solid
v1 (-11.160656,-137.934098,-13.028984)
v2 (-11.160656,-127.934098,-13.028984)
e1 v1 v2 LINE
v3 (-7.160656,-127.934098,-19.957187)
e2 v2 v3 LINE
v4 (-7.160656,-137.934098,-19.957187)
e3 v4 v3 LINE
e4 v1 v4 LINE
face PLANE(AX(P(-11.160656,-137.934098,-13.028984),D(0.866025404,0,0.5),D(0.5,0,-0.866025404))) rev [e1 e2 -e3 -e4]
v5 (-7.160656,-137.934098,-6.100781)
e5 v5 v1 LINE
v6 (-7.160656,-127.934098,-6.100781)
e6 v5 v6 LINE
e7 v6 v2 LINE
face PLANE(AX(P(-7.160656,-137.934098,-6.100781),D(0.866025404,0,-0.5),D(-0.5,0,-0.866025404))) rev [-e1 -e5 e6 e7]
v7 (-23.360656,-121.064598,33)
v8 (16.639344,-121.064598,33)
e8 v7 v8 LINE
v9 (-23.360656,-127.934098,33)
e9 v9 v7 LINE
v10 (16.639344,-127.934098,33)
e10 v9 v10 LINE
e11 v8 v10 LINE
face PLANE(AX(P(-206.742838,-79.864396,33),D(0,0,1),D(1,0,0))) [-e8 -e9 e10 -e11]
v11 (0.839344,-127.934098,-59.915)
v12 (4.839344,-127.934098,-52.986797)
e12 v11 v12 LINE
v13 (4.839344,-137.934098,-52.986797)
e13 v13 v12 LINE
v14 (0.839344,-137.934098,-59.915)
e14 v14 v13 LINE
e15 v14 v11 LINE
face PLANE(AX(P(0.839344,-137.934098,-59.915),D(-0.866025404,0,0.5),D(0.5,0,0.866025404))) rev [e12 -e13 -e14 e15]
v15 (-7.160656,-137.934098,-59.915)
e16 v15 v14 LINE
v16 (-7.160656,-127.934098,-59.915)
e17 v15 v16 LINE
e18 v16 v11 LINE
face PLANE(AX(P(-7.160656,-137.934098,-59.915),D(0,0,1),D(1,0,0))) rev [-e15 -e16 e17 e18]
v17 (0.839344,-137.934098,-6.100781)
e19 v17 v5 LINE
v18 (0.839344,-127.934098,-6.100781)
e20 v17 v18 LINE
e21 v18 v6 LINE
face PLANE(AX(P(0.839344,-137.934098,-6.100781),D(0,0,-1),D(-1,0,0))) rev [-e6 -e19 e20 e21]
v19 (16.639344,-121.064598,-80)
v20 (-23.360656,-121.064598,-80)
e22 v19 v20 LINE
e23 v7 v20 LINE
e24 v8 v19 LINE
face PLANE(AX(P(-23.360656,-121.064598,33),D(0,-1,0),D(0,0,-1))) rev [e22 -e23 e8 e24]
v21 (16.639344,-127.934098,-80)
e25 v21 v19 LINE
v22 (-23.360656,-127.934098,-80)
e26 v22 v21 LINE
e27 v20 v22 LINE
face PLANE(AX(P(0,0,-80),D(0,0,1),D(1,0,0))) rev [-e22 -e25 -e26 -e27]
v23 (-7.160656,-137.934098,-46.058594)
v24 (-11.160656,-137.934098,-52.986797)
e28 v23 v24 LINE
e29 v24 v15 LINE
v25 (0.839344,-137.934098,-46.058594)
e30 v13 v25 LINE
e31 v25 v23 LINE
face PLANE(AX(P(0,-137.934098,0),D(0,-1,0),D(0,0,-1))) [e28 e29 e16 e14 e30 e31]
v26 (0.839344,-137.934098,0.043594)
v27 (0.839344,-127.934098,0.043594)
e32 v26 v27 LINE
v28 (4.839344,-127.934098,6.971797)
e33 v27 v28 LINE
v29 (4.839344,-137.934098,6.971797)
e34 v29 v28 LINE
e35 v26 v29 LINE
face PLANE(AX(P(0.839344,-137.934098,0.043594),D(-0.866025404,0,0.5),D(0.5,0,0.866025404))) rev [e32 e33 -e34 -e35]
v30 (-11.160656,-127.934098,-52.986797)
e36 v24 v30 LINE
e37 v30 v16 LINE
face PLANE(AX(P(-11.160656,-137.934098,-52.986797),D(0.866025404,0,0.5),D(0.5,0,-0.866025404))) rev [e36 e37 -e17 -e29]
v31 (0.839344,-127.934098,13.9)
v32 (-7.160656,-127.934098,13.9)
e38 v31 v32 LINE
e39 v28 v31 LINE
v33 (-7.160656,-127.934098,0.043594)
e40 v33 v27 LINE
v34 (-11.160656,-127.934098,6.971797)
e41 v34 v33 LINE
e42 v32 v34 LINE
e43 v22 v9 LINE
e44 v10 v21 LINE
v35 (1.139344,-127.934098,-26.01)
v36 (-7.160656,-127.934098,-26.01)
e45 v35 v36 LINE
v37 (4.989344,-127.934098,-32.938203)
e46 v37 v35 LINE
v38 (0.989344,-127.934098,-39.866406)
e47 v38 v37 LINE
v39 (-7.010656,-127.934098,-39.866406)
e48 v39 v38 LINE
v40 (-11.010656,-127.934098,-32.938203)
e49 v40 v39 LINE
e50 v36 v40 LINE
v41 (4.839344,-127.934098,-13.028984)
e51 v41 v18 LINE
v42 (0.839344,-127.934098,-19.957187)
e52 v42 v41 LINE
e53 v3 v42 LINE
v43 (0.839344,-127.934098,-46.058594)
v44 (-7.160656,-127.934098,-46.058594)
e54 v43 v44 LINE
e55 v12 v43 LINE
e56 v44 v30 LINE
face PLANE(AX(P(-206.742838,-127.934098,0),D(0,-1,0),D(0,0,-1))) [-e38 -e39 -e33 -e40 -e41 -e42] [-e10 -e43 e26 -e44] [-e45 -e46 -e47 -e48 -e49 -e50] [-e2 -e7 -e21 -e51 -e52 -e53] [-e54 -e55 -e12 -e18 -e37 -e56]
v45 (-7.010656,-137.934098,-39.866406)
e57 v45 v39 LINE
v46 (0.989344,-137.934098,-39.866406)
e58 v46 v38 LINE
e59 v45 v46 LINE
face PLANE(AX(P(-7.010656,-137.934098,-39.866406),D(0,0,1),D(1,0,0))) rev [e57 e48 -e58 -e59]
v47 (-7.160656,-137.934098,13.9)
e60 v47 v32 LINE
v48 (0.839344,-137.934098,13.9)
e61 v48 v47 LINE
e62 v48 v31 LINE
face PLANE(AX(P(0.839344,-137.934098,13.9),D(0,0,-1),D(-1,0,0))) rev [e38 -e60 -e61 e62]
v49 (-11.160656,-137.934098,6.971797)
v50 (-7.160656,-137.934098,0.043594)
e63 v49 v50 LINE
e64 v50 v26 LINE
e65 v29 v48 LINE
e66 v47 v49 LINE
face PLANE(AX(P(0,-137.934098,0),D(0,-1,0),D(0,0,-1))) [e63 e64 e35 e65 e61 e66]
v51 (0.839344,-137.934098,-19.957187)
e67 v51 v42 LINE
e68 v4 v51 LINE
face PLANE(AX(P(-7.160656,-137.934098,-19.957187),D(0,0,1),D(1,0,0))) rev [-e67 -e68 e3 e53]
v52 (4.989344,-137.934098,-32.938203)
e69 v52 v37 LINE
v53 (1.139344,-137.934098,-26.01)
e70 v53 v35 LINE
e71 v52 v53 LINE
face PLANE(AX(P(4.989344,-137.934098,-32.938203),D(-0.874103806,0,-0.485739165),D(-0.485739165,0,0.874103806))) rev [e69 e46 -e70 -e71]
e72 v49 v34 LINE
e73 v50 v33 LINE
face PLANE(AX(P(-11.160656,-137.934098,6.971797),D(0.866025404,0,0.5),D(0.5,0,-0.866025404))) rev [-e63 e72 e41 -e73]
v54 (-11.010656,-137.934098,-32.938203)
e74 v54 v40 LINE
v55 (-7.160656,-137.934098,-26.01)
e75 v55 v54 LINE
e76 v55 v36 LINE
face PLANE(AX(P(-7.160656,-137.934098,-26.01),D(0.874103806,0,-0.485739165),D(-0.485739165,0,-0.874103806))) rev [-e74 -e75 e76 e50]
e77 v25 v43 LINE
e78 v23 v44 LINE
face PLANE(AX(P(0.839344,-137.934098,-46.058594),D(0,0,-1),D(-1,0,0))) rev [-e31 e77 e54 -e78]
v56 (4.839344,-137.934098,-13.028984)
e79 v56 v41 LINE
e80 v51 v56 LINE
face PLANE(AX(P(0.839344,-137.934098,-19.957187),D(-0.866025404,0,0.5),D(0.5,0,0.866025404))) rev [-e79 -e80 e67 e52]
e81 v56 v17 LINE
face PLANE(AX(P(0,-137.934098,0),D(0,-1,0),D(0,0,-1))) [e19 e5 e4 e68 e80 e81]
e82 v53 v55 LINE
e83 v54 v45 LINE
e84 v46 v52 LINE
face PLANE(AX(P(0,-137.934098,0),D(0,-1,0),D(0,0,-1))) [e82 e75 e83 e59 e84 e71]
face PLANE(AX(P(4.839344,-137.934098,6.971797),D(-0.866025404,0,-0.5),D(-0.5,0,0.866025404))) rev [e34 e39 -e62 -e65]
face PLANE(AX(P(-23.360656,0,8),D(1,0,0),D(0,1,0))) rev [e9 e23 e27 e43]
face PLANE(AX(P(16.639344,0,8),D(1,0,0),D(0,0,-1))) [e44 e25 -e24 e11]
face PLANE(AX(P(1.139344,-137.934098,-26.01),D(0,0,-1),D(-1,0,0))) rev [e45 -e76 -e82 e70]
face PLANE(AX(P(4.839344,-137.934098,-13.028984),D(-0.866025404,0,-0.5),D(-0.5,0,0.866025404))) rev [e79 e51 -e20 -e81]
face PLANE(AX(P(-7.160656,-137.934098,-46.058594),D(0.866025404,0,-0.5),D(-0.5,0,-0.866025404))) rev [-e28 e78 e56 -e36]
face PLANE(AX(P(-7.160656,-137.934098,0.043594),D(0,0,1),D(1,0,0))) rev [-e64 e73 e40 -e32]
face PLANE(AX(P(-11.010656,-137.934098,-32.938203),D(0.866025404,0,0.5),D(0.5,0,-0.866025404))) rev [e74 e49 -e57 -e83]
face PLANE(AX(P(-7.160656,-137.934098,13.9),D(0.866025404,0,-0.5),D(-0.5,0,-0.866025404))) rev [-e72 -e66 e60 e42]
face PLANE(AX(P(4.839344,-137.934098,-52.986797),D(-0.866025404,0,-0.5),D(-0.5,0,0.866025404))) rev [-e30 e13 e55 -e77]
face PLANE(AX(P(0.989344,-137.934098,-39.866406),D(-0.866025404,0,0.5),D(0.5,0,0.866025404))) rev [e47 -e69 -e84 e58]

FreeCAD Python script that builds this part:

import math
import FreeCAD as App
import Part
import Sketcher

V = App.Vector
Q = App.Units.Quantity


def edges_at(feature, points):
    """Names of the edges that pass closest to the given points."""
    edges = feature.Shape.Edges
    near = lambda p: min(range(len(edges)), key=lambda i: edges[i].distToShape(Part.Vertex(*p))[0])
    return sorted({f"Edge{near(p) + 1}" for p in points})

doc = App.newDocument("Part")
params = doc.addObject("Spreadsheet::Sheet", "Params")
for row, (alias, value) in enumerate([
    ("sketch1_diameter", "3.2 mm"),
    ("sketch1_diameter2", "22.5 mm"),
    ("sketch1_width", "40 mm"),
    ("pad1_length", "8 mm"),
    ("chamfer_size", "1 mm"),
    ("chamfer2_size", "1.3 mm"),
    ("sketch2_radius", "11.25 mm"),
    ("sketch2_width", "7.5 mm"),
    ("pad2_length", "5 mm"),
    ("sketch3_radius", "10 mm"),
    ("sketch3_width", "40 mm"),
    ("sketch3_height", "10 mm"),
    ("sketch3_height2", "113 mm"),
    ("sketch3_height3", "13 mm"),
    ("pad3_length", "40 mm"),
    ("sketch4_height", "7 mm"),
    ("sketch5_height", "6 mm"),
    ("pocket2_length", "40 mm"),
    ("sketch6_width", "8 mm"),
    ("sketch6_length", "8 mm"),
    ("sketch6_width2", "8.3 mm"),
    ("pad4_length", "10 mm"),
    ("sketch8_width", "40 mm"),
    ("pad5_length", "113 mm"),
], start=1):
    params.set(f"A{row}", alias)
    params.set(f"B{row}", "=" + value)
    params.setAlias(f"B{row}", alias)

body = doc.addObject("PartDesign::Body", "Body")

# Sketch on XY plane
sketch1 = doc.addObject("Sketcher::SketchObject", "Sketch")
body.addObject(sketch1)
sketch1.AttachmentSupport = (doc.XY_Plane, [""])
sketch1.MapMode = "FlatFace"
sketch1.addGeometry(Part.LineSegment(V(-23.4, 16.5, 0), V(-23.4, -23.5, 0)), False)
sketch1.addGeometry(Part.LineSegment(V(-23.4, -23.5, 0), V(16.6, -23.5, 0)), False)
sketch1.addGeometry(Part.LineSegment(V(16.6, -23.5, 0), V(16.6, 16.5, 0)), False)
sketch1.addGeometry(Part.LineSegment(V(16.6, 16.5, 0), V(-23.4, 16.5, 0)), False)
sketch1.addGeometry(Part.Circle(V(-3.4, -19.8, 0), V(0, 0, 1), 1.6), False)
sketch1.addGeometry(Part.Circle(V(-19.6, -3.5, 0), V(0, 0, 1), 1.6), False)
sketch1.addGeometry(Part.Circle(V(-3.4, -3.5, 0), V(0, 0, 1), 11.2), False)
sketch1.addGeometry(Part.Circle(V(12.9, -3.5, 0), V(0, 0, 1), 1.6), False)
sketch1.addGeometry(Part.Circle(V(-3.4, 12.7, 0), V(0, 0, 1), 1.6), False)
sketch1.addConstraint(Sketcher.Constraint("Coincident", 0, 2, 1, 1))
sketch1.addConstraint(Sketcher.Constraint("Coincident", 1, 2, 2, 1))
sketch1.addConstraint(Sketcher.Constraint("Coincident", 2, 2, 3, 1))
sketch1.addConstraint(Sketcher.Constraint("Coincident", 3, 2, 0, 1))
sketch1.addConstraint(Sketcher.Constraint("Vertical", 0))
sketch1.addConstraint(Sketcher.Constraint("Horizontal", 1))
sketch1.addConstraint(Sketcher.Constraint("Vertical", 2))
sketch1.addConstraint(Sketcher.Constraint("Horizontal", 3))
sketch1.addConstraint(Sketcher.Constraint("Equal", 4, 5))
sketch1.addConstraint(Sketcher.Constraint("Equal", 5, 7))
sketch1.addConstraint(Sketcher.Constraint("Equal", 7, 8))
sketch1.addConstraint(Sketcher.Constraint("Horizontal", 5, 3, 6, 3))
sketch1.addConstraint(Sketcher.Constraint("Horizontal", 6, 3, 7, 3))
sketch1.addConstraint(Sketcher.Constraint("Vertical", 4, 3, 6, 3))
sketch1.addConstraint(Sketcher.Constraint("Vertical", 6, 3, 8, 3))
sketch1.addConstraint(Sketcher.Constraint("Equal", 3, 0))
sketch1.addConstraint(Sketcher.Constraint("Diameter", 4, 3.2))
sketch1.addConstraint(Sketcher.Constraint("Diameter", 6, 22.5))
sketch1.addConstraint(Sketcher.Constraint("DistanceX", 1, 1, 1, 2, 40.0))
sketch1.addConstraint(Sketcher.Constraint("DistanceX", 0, 2, 4, 3, 20.0))
sketch1.addConstraint(Sketcher.Constraint("DistanceY", 0, 2, 5, 3, 20.0))
sketch1.addConstraint(Sketcher.Constraint("DistanceX", 5, 3, 7, 3, 32.5))
sketch1.addConstraint(Sketcher.Constraint("DistanceY", 4, 3, 8, 3, 32.5))
sketch1.addConstraint(Sketcher.Constraint("DistanceX", 5, 3, 4, 3, 16.25))
sketch1.addConstraint(Sketcher.Constraint("DistanceY", 4, 3, 5, 3, 16.25))
sketch1.addConstraint(Sketcher.Constraint("DistanceY", 4, 3, -1, 1, 19.754098))
sketch1.addConstraint(Sketcher.Constraint("DistanceX", 4, 3, -1, 1, 3.360656))
sketch1.setExpression("Constraints[16]", "Params.sketch1_diameter")
sketch1.setExpression("Constraints[17]", "Params.sketch1_diameter2")
sketch1.setExpression("Constraints[18]", "Params.sketch1_width")
pad1 = doc.addObject("PartDesign::Pad", "Pad")
body.addObject(pad1)
pad1.Profile = sketch1
pad1.setExpression("Length", "Params.pad1_length")
doc.recompute()

chamfer = doc.addObject("PartDesign::Chamfer", "Chamfer")
body.addObject(chamfer)
chamfer.Base = (pad1, edges_at(pad1, [
    (-4.961, 12.746, 0),
    (11.289, -3.504, 0),
    (-4.961, -19.754, 0),
    (-21.211, -3.504, 0),
]))
chamfer.setExpression("Size", "Params.chamfer_size")
doc.recompute()

chamfer2 = doc.addObject("PartDesign::Chamfer", "Chamfer001")
body.addObject(chamfer2)
chamfer2.Base = (chamfer, edges_at(chamfer, [(-14.611, -3.504, 0)]))
chamfer2.setExpression("Size", "Params.chamfer2_size")

# Sketch on XY plane
sketch2 = doc.addObject("Sketcher::SketchObject", "Sketch001")
body.addObject(sketch2)
sketch2.AttachmentSupport = (doc.XY_Plane, [""])
sketch2.MapMode = "FlatFace"
sketch2.AttachmentOffset = App.Placement(V(0, 0, 8), App.Rotation())
sketch2.addGeometry(Part.LineSegment(V(-23.4, -8.1, 0), V(-23.4, -23.5, 0)), False)
sketch2.addGeometry(Part.LineSegment(V(-23.4, -23.5, 0), V(-8, -23.5, 0)), False)
sketch2.addGeometry(Part.LineSegment(V(-8, -23.5, 0), V(-8, -13.8, 0)), False)
sketch2.addGeometry(Part.ArcOfCircle(Part.Circle(V(-3.4, -3.5, 0), V(0, 0, 1), 11.2), math.radians(-156), math.radians(-114)), False)
sketch2.addGeometry(Part.LineSegment(V(-13.6, -8.1, 0), V(-23.4, -8.1, 0)), False)
sketch2.addGeometry(Part.LineSegment(V(-8, 9, 0), V(-8, 16.5, 0)), False)
sketch2.addGeometry(Part.LineSegment(V(-8, 16.5, 0), V(-23.4, 16.5, 0)), False)
sketch2.addGeometry(Part.LineSegment(V(-23.4, 16.5, 0), V(-23.4, 1.1, 0)), False)
sketch2.addGeometry(Part.LineSegment(V(-23.4, 1.1, 0), V(-15.9, 1.1, 0)), False)
sketch2.addGeometry(Part.LineSegment(V(-15.9, 1.1, 0), V(-13.6, 1.1, 0)), False)
sketch2.addGeometry(Part.ArcOfCircle(Part.Circle(V(-3.4, -3.5, 0), V(0, 0, 1), 11.2), math.radians(114), math.radians(156)), False)
sketch2.addGeometry(Part.LineSegment(V(-8, 6.8, 0), V(-8, 9, 0)), False)
sketch2.addGeometry(Part.LineSegment(V(16.6, 16.5, 0), V(1.2, 16.5, 0)), False)
sketch2.addGeometry(Part.LineSegment(V(1.2, 16.5, 0), V(1.2, 9, 0)), False)
sketch2.addGeometry(Part.LineSegment(V(1.2, 9, 0), V(1.2, 6.8, 0)), False)
sketch2.addGeometry(Part.ArcOfCircle(Part.Circle(V(-3.4, -3.5, 0), V(0, 0, 1), 11.2), math.radians(24), math.radians(66)), False)
sketch2.addGeometry(Part.LineSegment(V(6.9, 1.1, 0), V(9.1, 1.1, 0)), False)
sketch2.addGeometry(Part.LineSegment(V(9.1, 1.1, 0), V(16.6, 1.1, 0)), False)
sketch2.addGeometry(Part.LineSegment(V(16.6, 1.1, 0), V(16.6, 16.5, 0)), False)
sketch2.addGeometry(Part.LineSegment(V(16.6, -23.5, 0), V(16.6, -8.1, 0)), False)
sketch2.addGeometry(Part.LineSegment(V(16.6, -8.1, 0), V(9.1, -8.1, 0)), False)
sketch2.addGeometry(Part.LineSegment(V(9.1, -8.1, 0), V(6.9, -8.1, 0)), False)
sketch2.addGeometry(Part.ArcOfCircle(Part.Circle(V(-3.4, -3.5, 0), V(0, 0, 1), 11.2), math.radians(-66), math.radians(-24)), False)
sketch2.addGeometry(Part.LineSegment(V(1.2, -13.8, 0), V(1.2, -16, 0)), False)
sketch2.addGeometry(Part.LineSegment(V(1.2, -16, 0), V(1.2, -23.5, 0)), False)
sketch2.addGeometry(Part.LineSegment(V(1.2, -23.5, 0), V(16.6, -23.5, 0)), False)
sketch2.addConstraint(Sketcher.Constraint("Coincident", 0, 2, 1, 1))
sketch2.addConstraint(Sketcher.Constraint("Coincident", 1, 2, 2, 1))
sketch2.addConstraint(Sketcher.Constraint("Coincident", 2, 2, 3, 2))
sketch2.addConstraint(Sketcher.Constraint("Coincident", 3, 1, 4, 1))
sketch2.addConstraint(Sketcher.Constraint("Coincident", 4, 2, 0, 1))
sketch2.addConstraint(Sketcher.Constraint("Coincident", 5, 2, 6, 1))
sketch2.addConstraint(Sketcher.Constraint("Coincident", 6, 2, 7, 1))
sketch2.addConstraint(Sketcher.Constraint("Coincident", 7, 2, 8, 1))
sketch2.addConstraint(Sketcher.Constraint("Coincident", 8, 2, 9, 1))
sketch2.addConstraint(Sketcher.Constraint("Coincident", 9, 2, 10, 2))
sketch2.addConstraint(Sketcher.Constraint("Coincident", 10, 1, 11, 1))
sketch2.addConstraint(Sketcher.Constraint("Coincident", 11, 2, 5, 1))
sketch2.addConstraint(Sketcher.Constraint("Coincident", 12, 2, 13, 1))
sketch2.addConstraint(Sketcher.Constraint("Coincident", 13, 2, 14, 1))
sketch2.addConstraint(Sketcher.Constraint("Coincident", 14, 2, 15, 2))
sketch2.addConstraint(Sketcher.Constraint("Coincident", 15, 1, 16, 1))
sketch2.addConstraint(Sketcher.Constraint("Coincident", 16, 2, 17, 1))
sketch2.addConstraint(Sketcher.Constraint("Coincident", 17, 2, 18, 1))
sketch2.addConstraint(Sketcher.Constraint("Coincident", 18, 2, 12, 1))
sketch2.addConstraint(Sketcher.Constraint("Coincident", 19, 2, 20, 1))
sketch2.addConstraint(Sketcher.Constraint("Coincident", 20, 2, 21, 1))
sketch2.addConstraint(Sketcher.Constraint("Coincident", 21, 2, 22, 2))
sketch2.addConstraint(Sketcher.Constraint("Coincident", 22, 1, 23, 1))
sketch2.addConstraint(Sketcher.Constraint("Coincident", 23, 2, 24, 1))
sketch2.addConstraint(Sketcher.Constraint("Coincident", 24, 2, 25, 1))
sketch2.addConstraint(Sketcher.Constraint("Coincident", 25, 2, 19, 1))
sketch2.addConstraint(Sketcher.Constraint("Vertical", 0))
sketch2.addConstraint(Sketcher.Constraint("Horizontal", 1))
sketch2.addConstraint(Sketcher.Constraint("Vertical", 2))
sketch2.addConstraint(Sketcher.Constraint("Horizontal", 4))
sketch2.addConstraint(Sketcher.Constraint("Vertical", 5))
sketch2.addConstraint(Sketcher.Constraint("Horizontal", 6))
sketch2.addConstraint(Sketcher.Constraint("Vertical", 7))
sketch2.addConstraint(Sketcher.Constraint("Horizontal", 8))
sketch2.addConstraint(Sketcher.Constraint("Horizontal", 9))
sketch2.addConstraint(Sketcher.Constraint("Vertical", 11))
sketch2.addConstraint(Sketcher.Constraint("Horizontal", 12))
sketch2.addConstraint(Sketcher.Constraint("Vertical", 13))
sketch2.addConstraint(Sketcher.Constraint("Vertical", 14))
sketch2.addConstraint(Sketcher.Constraint("Horizontal", 16))
sketch2.addConstraint(Sketcher.Constraint("Horizontal", 17))
sketch2.addConstraint(Sketcher.Constraint("Vertical", 18))
sketch2.addConstraint(Sketcher.Constraint("Vertical", 19))
sketch2.addConstraint(Sketcher.Constraint("Horizontal", 20))
sketch2.addConstraint(Sketcher.Constraint("Horizontal", 21))
sketch2.addConstraint(Sketcher.Constraint("Vertical", 23))
sketch2.addConstraint(Sketcher.Constraint("Vertical", 24))
sketch2.addConstraint(Sketcher.Constraint("Horizontal", 25))
sketch2.addConstraint(Sketcher.Constraint("Coincident", 10, 3, 3, 3))
sketch2.addConstraint(Sketcher.Constraint("Coincident", 15, 3, 3, 3))
sketch2.addConstraint(Sketcher.Constraint("Coincident", 22, 3, 3, 3))
sketch2.addConstraint(Sketcher.Constraint("Equal", 3, 10))
sketch2.addConstraint(Sketcher.Constraint("Equal", 10, 15))
sketch2.addConstraint(Sketcher.Constraint("Equal", 15, 22))
sketch2.addConstraint(Sketcher.Constraint("Horizontal", 6, 2, 12, 2))
sketch2.addConstraint(Sketcher.Constraint("Horizontal", 11, 2, 13, 2))
sketch2.addConstraint(Sketcher.Constraint("Horizontal", 10, 1, 14, 2))
sketch2.addConstraint(Sketcher.Constraint("Horizontal", 9, 2, 15, 1))
sketch2.addConstraint(Sketcher.Constraint("Horizontal", 4, 2, 19, 2))
sketch2.addConstraint(Sketcher.Constraint("Horizontal", 2, 2, 22, 1))
sketch2.addConstraint(Sketcher.Constraint("Horizontal", 1, 2, 24, 2))
sketch2.addConstraint(Sketcher.Constraint("Vertical", 2, 2, 5, 2))
sketch2.addConstraint(Sketcher.Constraint("Vertical", 4, 2, 6, 2))
sketch2.addConstraint(Sketcher.Constraint("Vertical", 3, 1, 9, 2))
sketch2.addConstraint(Sketcher.Constraint("Vertical", 18, 2, 19, 2))
sketch2.addConstraint(Sketcher.Constraint("Vertical", 16, 2, 20, 2))
sketch2.addConstraint(Sketcher.Constraint("Equal", 6, 12))
sketch2.addConstraint(Sketcher.Constraint("Equal", 9, 16))
sketch2.addConstraint(Sketcher.Constraint("Equal", 25, 0))
sketch2.addConstraint(Sketcher.Constraint("Equal", 4, 2))
sketch2.addConstraint(Sketcher.Constraint("Equal", 20, 5))
sketch2.addConstraint(Sketcher.Constraint("Equal", 0, 7))
sketch2.addConstraint(Sketcher.Constraint("Equal", 14, 23))
sketch2.addConstraint(Sketcher.Constraint("Radius", 3, 11.25))
sketch2.addConstraint(Sketcher.Constraint("DistanceX", 8, 1, 8, 2, 7.5))
sketch2.addConstraint(Sketcher.Constraint("DistanceX", 0, 2, 3, 3, 20.0))
sketch2.addConstraint(Sketcher.Constraint("DistanceX", 4, 2, 4, 1, 9.728821))
sketch2.addConstraint(Sketcher.Constraint("DistanceY", 3, 3, -1, 1, 3.504098))
sketch2.addConstraint(Sketcher.Constraint("DistanceX", 1, 2, -1, 1, 7.950359))
sketch2.setExpression("Constraints[73]", "Params.sketch2_radius")
sketch2.setExpression("Constraints[74]", "Params.sketch2_width")
pad2 = doc.addObject("PartDesign::Pad", "Pad001")
body.addObject(pad2)
pad2.Profile = sketch2
pad2.setExpression("Length", "Params.pad2_length")

# Sketch on YZ plane
sketch3 = doc.addObject("Sketcher::SketchObject", "Sketch002")
body.addObject(sketch3)
sketch3.AttachmentSupport = (doc.YZ_Plane, [""])
sketch3.MapMode = "FlatFace"
sketch3.AttachmentOffset = App.Placement(V(0, 0, 16.639344), App.Rotation())
sketch3.addGeometry(Part.LineSegment(V(16, 13, 0), V(16, 23, 0)), False)
sketch3.addGeometry(Part.ArcOfCircle(Part.Circle(V(6, 23, 0), V(0, 0, 1), 10), math.radians(0), math.radians(90)), False)
sketch3.addGeometry(Part.LineSegment(V(6, 33, 0), V(-128, 33, 0)), False)
sketch3.addGeometry(Part.LineSegment(V(-128, 33, 0), V(-128, -80, 0)), False)
sketch3.addGeometry(Part.ArcOfCircle(Part.Circle(V(-24, -108, 0), V(0, 0, 1), 108), math.radians(90), math.radians(165)), False)
sketch3.addGeometry(Part.LineSegment(V(-24, 0, 0), V(-24, 13, 0)), False)
sketch3.addGeometry(Part.LineSegment(V(-24, 13, 0), V(16, 13, 0)), False)
sketch3.addConstraint(Sketcher.Constraint("Tangent", 0, 2, 1, 1))
sketch3.addConstraint(Sketcher.Constraint("Tangent", 1, 2, 2, 1))
sketch3.addConstraint(Sketcher.Constraint("Coincident", 2, 2, 3, 1))
sketch3.addConstraint(Sketcher.Constraint("Coincident", 3, 2, 4, 2))
sketch3.addConstraint(Sketcher.Constraint("Coincident", 4, 1, 5, 1))
sketch3.addConstraint(Sketcher.Constraint("Coincident", 5, 2, 6, 1))
sketch3.addConstraint(Sketcher.Constraint("Coincident", 6, 2, 0, 1))
sketch3.addConstraint(Sketcher.Constraint("Vertical", 0))
sketch3.addConstraint(Sketcher.Constraint("Horizontal", 2))
sketch3.addConstraint(Sketcher.Constraint("Vertical", 3))
sketch3.addConstraint(Sketcher.Constraint("Vertical", 5))
sketch3.addConstraint(Sketcher.Constraint("Horizontal", 6))
sketch3.addConstraint(Sketcher.Constraint("PointOnObject", 4, 1, -1))
sketch3.addConstraint(Sketcher.Constraint("Radius", 1, 10.0))
sketch3.addConstraint(Sketcher.Constraint("DistanceX", 6, 1, 6, 2, 40.0))
sketch3.addConstraint(Sketcher.Constraint("DistanceY", 0, 1, 0, 2, 10.0))
sketch3.addConstraint(Sketcher.Constraint("DistanceY", 3, 2, 3, 1, 113.0))
sketch3.addConstraint(Sketcher.Constraint("DistanceY", 5, 1, 5, 2, 13.0))
sketch3.addConstraint(Sketcher.Constraint("DistanceX", 4, 3, 1, 3, 30.0))
sketch3.addConstraint(Sketcher.Constraint("DistanceX", 2, 2, 2, 1, 134.43))
sketch3.addConstraint(Sketcher.Constraint("DistanceX", -1, 1, 1, 3, 6.495902))
sketch3.setExpression("Constraints[13]", "Params.sketch3_radius")
sketch3.setExpression("Constraints[14]", "Params.sketch3_width")
sketch3.setExpression("Constraints[15]", "Params.sketch3_height")
sketch3.setExpression("Constraints[16]", "Params.sketch3_height2")
sketch3.setExpression("Constraints[17]", "Params.sketch3_height3")
pad3 = doc.addObject("PartDesign::Pad", "Pad002")
body.addObject(pad3)
pad3.Profile = sketch3
pad3.setExpression("Length", "Params.pad3_length")
pad3.Reversed = True

# Sketch on YZ plane
sketch4 = doc.addObject("Sketcher::SketchObject", "Sketch003")
body.addObject(sketch4)
sketch4.AttachmentSupport = (doc.YZ_Plane, [""])
sketch4.MapMode = "FlatFace"
sketch4.AttachmentOffset = App.Placement(V(0, 0, 16.639344), App.Rotation())
sketch4.addGeometry(Part.LineSegment(V(1, 20, 0), V(-8, 20, 0)), False)
sketch4.addGeometry(Part.LineSegment(V(-8, 20, 0), V(-8, 13, 0)), False)
sketch4.addGeometry(Part.LineSegment(V(-8, 13, 0), V(1, 13, 0)), False)
sketch4.addGeometry(Part.LineSegment(V(1, 13, 0), V(1, 20, 0)), False)
sketch4.addConstraint(Sketcher.Constraint("Coincident", 0, 2, 1, 1))
sketch4.addConstraint(Sketcher.Constraint("Coincident", 1, 2, 2, 1))
sketch4.addConstraint(Sketcher.Constraint("Coincident", 2, 2, 3, 1))
sketch4.addConstraint(Sketcher.Constraint("Coincident", 3, 2, 0, 1))
sketch4.addConstraint(Sketcher.Constraint("Horizontal", 0))
sketch4.addConstraint(Sketcher.Constraint("Vertical", 1))
sketch4.addConstraint(Sketcher.Constraint("Horizontal", 2))
sketch4.addConstraint(Sketcher.Constraint("Vertical", 3))
sketch4.addConstraint(Sketcher.Constraint("DistanceY", 1, 2, 1, 1, 7.0))
sketch4.addConstraint(Sketcher.Constraint("DistanceY", -1, 1, 0, 2, 20.0))
sketch4.addConstraint(Sketcher.Constraint("DistanceX", 0, 2, -1, 1, 8.093802))
sketch4.addConstraint(Sketcher.Constraint("DistanceX", 0, 2, 0, 1, 9.179407))
sketch4.setExpression("Constraints[8]", "Params.sketch4_height")
pocket1 = doc.addObject("PartDesign::Pocket", "Pocket")
body.addObject(pocket1)
pocket1.Profile = sketch4
pocket1.Type = "ThroughAll"
pocket1.Midplane = True

# Sketch on XZ plane
sketch5 = doc.addObject("Sketcher::SketchObject", "Sketch004")
body.addObject(sketch5)
sketch5.AttachmentSupport = (doc.XZ_Plane, [""])
sketch5.MapMode = "FlatFace"
sketch5.AttachmentOffset = App.Placement(V(0, 0, 23.504098), App.Rotation())
sketch5.addGeometry(Part.LineSegment(V(-8, 13, 0), V(-8, 19, 0)), False)
sketch5.addGeometry(Part.LineSegment(V(-8, 19, 0), V(1, 19, 0)), False)
sketch5.addGeometry(Part.LineSegment(V(1, 19, 0), V(1, 13, 0)), False)
sketch5.addGeometry(Part.LineSegment(V(1, 13, 0), V(-8, 13, 0)), False)
sketch5.addConstraint(Sketcher.Constraint("Coincident", 0, 2, 1, 1))
sketch5.addConstraint(Sketcher.Constraint("Coincident", 1, 2, 2, 1))
sketch5.addConstraint(Sketcher.Constraint("Coincident", 2, 2, 3, 1))
sketch5.addConstraint(Sketcher.Constraint("Coincident", 3, 2, 0, 1))
sketch5.addConstraint(Sketcher.Constraint("Vertical", 0))
sketch5.addConstraint(Sketcher.Constraint("Horizontal", 1))
sketch5.addConstraint(Sketcher.Constraint("Vertical", 2))
sketch5.addConstraint(Sketcher.Constraint("Horizontal", 3))
sketch5.addConstraint(Sketcher.Constraint("DistanceY", 0, 1, 0, 2, 6.0))
sketch5.addConstraint(Sketcher.Constraint("DistanceY", -1, 1, 0, 2, 19.0))
sketch5.addConstraint(Sketcher.Constraint("DistanceX", 1, 1, 1, 2, 9.179407))
sketch5.addConstraint(Sketcher.Constraint("DistanceX", 0, 2, -1, 1, 7.950359))
sketch5.setExpression("Constraints[8]", "Params.sketch5_height")
pocket2 = doc.addObject("PartDesign::Pocket", "Pocket001")
body.addObject(pocket2)
pocket2.Profile = sketch5
pocket2.setExpression("Length", "Params.pocket2_length")

# Sketch on XZ plane
sketch6 = doc.addObject("Sketcher::SketchObject", "Sketch005")
body.addObject(sketch6)
sketch6.AttachmentSupport = (doc.XZ_Plane, [""])
sketch6.MapMode = "FlatFace"
sketch6.AttachmentOffset = App.Placement(V(0, 0, 127.934098), App.Rotation())
sketch6.addGeometry(Part.LineSegment(V(5, -33, 0), V(1, -26, 0)), False)
sketch6.addGeometry(Part.LineSegment(V(1, -26, 0), V(-7, -26, 0)), False)
sketch6.addGeometry(Part.LineSegment(V(-7, -26, 0), V(-11, -33, 0)), False)
sketch6.addGeometry(Part.LineSegment(V(-11, -33, 0), V(-7, -40, 0)), False)
sketch6.addGeometry(Part.LineSegment(V(-7, -40, 0), V(1, -40, 0)), False)
sketch6.addGeometry(Part.LineSegment(V(1, -40, 0), V(5, -33, 0)), False)
sketch6.addGeometry(Part.LineSegment(V(5, -53, 0), V(1, -46, 0)), False)
sketch6.addGeometry(Part.LineSegment(V(1, -46, 0), V(-7, -46, 0)), False)
sketch6.addGeometry(Part.LineSegment(V(-7, -46, 0), V(-11, -53, 0)), False)
sketch6.addGeometry(Part.LineSegment(V(-11, -53, 0), V(-7, -60, 0)), False)
sketch6.addGeometry(Part.LineSegment(V(-7, -60, 0), V(1, -60, 0)), False)
sketch6.addGeometry(Part.LineSegment(V(1, -60, 0), V(5, -53, 0)), False)
sketch6.addGeometry(Part.LineSegment(V(5, -13, 0), V(1, -6, 0)), False)
sketch6.addGeometry(Part.LineSegment(V(1, -6, 0), V(-7, -6, 0)), False)
sketch6.addGeometry(Part.LineSegment(V(-7, -6, 0), V(-11, -13, 0)), False)
sketch6.addGeometry(Part.LineSegment(V(-11, -13, 0), V(-7, -20, 0)), False)
sketch6.addGeometry(Part.LineSegment(V(-7, -20, 0), V(1, -20, 0)), False)
sketch6.addGeometry(Part.LineSegment(V(1, -20, 0), V(5, -13, 0)), False)
sketch6.addGeometry(Part.LineSegment(V(5, 7, 0), V(1, 14, 0)), False)
sketch6.addGeometry(Part.LineSegment(V(1, 14, 0), V(-7, 14, 0)), False)
sketch6.addGeometry(Part.LineSegment(V(-7, 14, 0), V(-11, 7, 0)), False)
sketch6.addGeometry(Part.LineSegment(V(-11, 7, 0), V(-7, 0, 0)), False)
sketch6.addGeometry(Part.LineSegment(V(-7, 0, 0), V(1, 0, 0)), False)
sketch6.addGeometry(Part.LineSegment(V(1, 0, 0), V(5, 7, 0)), False)
sketch6.addConstraint(Sketcher.Constraint("Coincident", 0, 2, 1, 1))
sketch6.addConstraint(Sketcher.Constraint("Coincident", 1, 2, 2, 1))
sketch6.addConstraint(Sketcher.Constraint("Coincident", 2, 2, 3, 1))
sketch6.addConstraint(Sketcher.Constraint("Coincident", 3, 2, 4, 1))
sketch6.addConstraint(Sketcher.Constraint("Coincident", 4, 2, 5, 1))
sketch6.addConstraint(Sketcher.Constraint("Coincident", 5, 2, 0, 1))
sketch6.addConstraint(Sketcher.Constraint("Coincident", 6, 2, 7, 1))
sketch6.addConstraint(Sketcher.Constraint("Coincident", 7, 2, 8, 1))
sketch6.addConstraint(Sketcher.Constraint("Coincident", 8, 2, 9, 1))
sketch6.addConstraint(Sketcher.Constraint("Coincident", 9, 2, 10, 1))
sketch6.addConstraint(Sketcher.Constraint("Coincident", 10, 2, 11, 1))
sketch6.addConstraint(Sketcher.Constraint("Coincident", 11, 2, 6, 1))
sketch6.addConstraint(Sketcher.Constraint("Coincident", 12, 2, 13, 1))
sketch6.addConstraint(Sketcher.Constraint("Coincident", 13, 2, 14, 1))
sketch6.addConstraint(Sketcher.Constraint("Coincident", 14, 2, 15, 1))
sketch6.addConstraint(Sketcher.Constraint("Coincident", 15, 2, 16, 1))
sketch6.addConstraint(Sketcher.Constraint("Coincident", 16, 2, 17, 1))
sketch6.addConstraint(Sketcher.Constraint("Coincident", 17, 2, 12, 1))
sketch6.addConstraint(Sketcher.Constraint("Coincident", 18, 2, 19, 1))
sketch6.addConstraint(Sketcher.Constraint("Coincident", 19, 2, 20, 1))
sketch6.addConstraint(Sketcher.Constraint("Coincident", 20, 2, 21, 1))
sketch6.addConstraint(Sketcher.Constraint("Coincident", 21, 2, 22, 1))
sketch6.addConstraint(Sketcher.Constraint("Coincident", 22, 2, 23, 1))
sketch6.addConstraint(Sketcher.Constraint("Coincident", 23, 2, 18, 1))
sketch6.addConstraint(Sketcher.Constraint("Horizontal", 1))
sketch6.addConstraint(Sketcher.Constraint("Horizontal", 4))
sketch6.addConstraint(Sketcher.Constraint("Horizontal", 7))
sketch6.addConstraint(Sketcher.Constraint("Horizontal", 10))
sketch6.addConstraint(Sketcher.Constraint("Horizontal", 13))
sketch6.addConstraint(Sketcher.Constraint("Horizontal", 16))
sketch6.addConstraint(Sketcher.Constraint("Horizontal", 19))
sketch6.addConstraint(Sketcher.Constraint("Horizontal", 22))
sketch6.addConstraint(Sketcher.Constraint("Parallel", 3, 6))
sketch6.addConstraint(Sketcher.Constraint("Parallel", 5, 8))
sketch6.addConstraint(Sketcher.Constraint("Parallel", 6, 9))
sketch6.addConstraint(Sketcher.Constraint("Parallel", 8, 11))
sketch6.addConstraint(Sketcher.Constraint("Parallel", 9, 12))
sketch6.addConstraint(Sketcher.Constraint("Parallel", 11, 14))
sketch6.addConstraint(Sketcher.Constraint("Parallel", 12, 15))
sketch6.addConstraint(Sketcher.Constraint("Parallel", 14, 17))
sketch6.addConstraint(Sketcher.Constraint("Parallel", 15, 18))
sketch6.addConstraint(Sketcher.Constraint("Parallel", 17, 20))
sketch6.addConstraint(Sketcher.Constraint("Parallel", 18, 21))
sketch6.addConstraint(Sketcher.Constraint("Parallel", 20, 23))
sketch6.addConstraint(Sketcher.Constraint("Horizontal", 2, 2, 5, 2))
sketch6.addConstraint(Sketcher.Constraint("Horizontal", 8, 2, 11, 2))
sketch6.addConstraint(Sketcher.Constraint("Horizontal", 14, 2, 17, 2))
sketch6.addConstraint(Sketcher.Constraint("Horizontal", 20, 2, 23, 2))
sketch6.addConstraint(Sketcher.Constraint("Vertical", 1, 2, 7, 2))
sketch6.addConstraint(Sketcher.Constraint("Vertical", 7, 2, 9, 2))
sketch6.addConstraint(Sketcher.Constraint("Vertical", 6, 2, 10, 2))
sketch6.addConstraint(Sketcher.Constraint("Vertical", 10, 2, 12, 2))
sketch6.addConstraint(Sketcher.Constraint("Vertical", 9, 2, 13, 2))
sketch6.addConstraint(Sketcher.Constraint("Vertical", 8, 2, 14, 2))
sketch6.addConstraint(Sketcher.Constraint("Vertical", 13, 2, 15, 2))
sketch6.addConstraint(Sketcher.Constraint("Vertical", 16, 2, 18, 2))
sketch6.addConstraint(Sketcher.Constraint("Vertical", 15, 2, 19, 2))
sketch6.addConstraint(Sketcher.Constraint("Vertical", 14, 2, 20, 2))
sketch6.addConstraint(Sketcher.Constraint("Vertical", 19, 2, 21, 2))
sketch6.addConstraint(Sketcher.Constraint("Equal", 4, 7))
sketch6.addConstraint(Sketcher.Constraint("Equal", 0, 2))
sketch6.addConstraint(Sketcher.Constraint("Equal", 5, 6))
sketch6.addConstraint(Sketcher.Constraint("DistanceX", 4, 1, 4, 2, 8.0))
sketch6.addConstraint(Sketcher.Constraint("Angle", 3, Q("-60 deg")))
sketch6.addConstraint(Sketcher.Constraint("Distance", 3, 8.0))
sketch6.addConstraint(Sketcher.Constraint("DistanceX", 1, 2, 1, 1, 8.3))
sketch6.addConstraint(Sketcher.Constraint("DistanceY", -1, 1, 18, 2, 13.9))
sketch6.addConstraint(Sketcher.Constraint("DistanceY", 0, 2, -1, 1, 26.01))
sketch6.addConstraint(Sketcher.Constraint("DistanceY", 9, 2, -1, 1, 59.915))
sketch6.addConstraint(Sketcher.Constraint("DistanceY", 12, 2, -1, 1, 6.100781))
sketch6.addConstraint(Sketcher.Constraint("DistanceY", 6, 2, 5, 2, 13.12039))
sketch6.addConstraint(Sketcher.Constraint("DistanceX", -1, 1, 0, 2, 1.139344))
sketch6.setExpression("Constraints[62]", "Params.sketch6_width")
sketch6.setExpression("Constraints[64]", "Params.sketch6_length")
sketch6.setExpression("Constraints[65]", "Params.sketch6_width2")
pad4 = doc.addObject("PartDesign::Pad", "Pad003")
body.addObject(pad4)
pad4.Profile = sketch6
pad4.setExpression("Length", "Params.pad4_length")

# Sketch on YZ plane
sketch7 = doc.addObject("Sketcher::SketchObject", "Sketch006")
body.addObject(sketch7)
sketch7.AttachmentSupport = (doc.YZ_Plane, [""])
sketch7.MapMode = "FlatFace"
sketch7.AttachmentOffset = App.Placement(V(0, 0, 16.639344), App.Rotation())
sketch7.addGeometry(Part.LineSegment(V(16, 33, 0), V(-121, 33, 0)), False)
sketch7.addGeometry(Part.LineSegment(V(-121, 33, 0), V(-121, -75, 0)), False)
sketch7.addGeometry(Part.LineSegment(V(-121, -75, 0), V(16, -75, 0)), False)
sketch7.addGeometry(Part.LineSegment(V(16, -75, 0), V(16, 33, 0)), False)
sketch7.addConstraint(Sketcher.Constraint("Coincident", 0, 2, 1, 1))
sketch7.addConstraint(Sketcher.Constraint("Coincident", 1, 2, 2, 1))
sketch7.addConstraint(Sketcher.Constraint("Coincident", 2, 2, 3, 1))
sketch7.addConstraint(Sketcher.Constraint("Coincident", 3, 2, 0, 1))
sketch7.addConstraint(Sketcher.Constraint("Horizontal", 0))
sketch7.addConstraint(Sketcher.Constraint("Vertical", 1))
sketch7.addConstraint(Sketcher.Constraint("Horizontal", 2))
sketch7.addConstraint(Sketcher.Constraint("Vertical", 3))
sketch7.addConstraint(Sketcher.Constraint("DistanceY", -1, 1, 0, 2, 33.0))
sketch7.addConstraint(Sketcher.Constraint("DistanceX", 0, 2, 0, 1, 137.560499))
sketch7.addConstraint(Sketcher.Constraint("DistanceX", -1, 1, 2, 2, 16.495902))
sketch7.addConstraint(Sketcher.Constraint("DistanceY", 1, 2, 1, 1, 108.011855))
pocket3 = doc.addObject("PartDesign::Pocket", "Pocket002")
body.addObject(pocket3)
pocket3.Profile = sketch7
pocket3.Type = "ThroughAll"

# Sketch on XY plane
sketch8 = doc.addObject("Sketcher::SketchObject", "Sketch007")
body.addObject(sketch8)
sketch8.AttachmentSupport = (doc.XY_Plane, [""])
sketch8.MapMode = "FlatFace"
sketch8.AttachmentOffset = App.Placement(V(0, 0, 33), App.Rotation())
sketch8.addGeometry(Part.LineSegment(V(-23, -121, 0), V(-23, -128, 0)), False)
sketch8.addGeometry(Part.LineSegment(V(-23, -128, 0), V(17, -128, 0)), False)
sketch8.addGeometry(Part.LineSegment(V(17, -128, 0), V(17, -121, 0)), False)
sketch8.addGeometry(Part.LineSegment(V(17, -121, 0), V(-23, -121, 0)), False)
sketch8.addConstraint(Sketcher.Constraint("Coincident", 0, 2, 1, 1))
sketch8.addConstraint(Sketcher.Constraint("Coincident", 1, 2, 2, 1))
sketch8.addConstraint(Sketcher.Constraint("Coincident", 2, 2, 3, 1))
sketch8.addConstraint(Sketcher.Constraint("Coincident", 3, 2, 0, 1))
sketch8.addConstraint(Sketcher.Constraint("Vertical", 0))
sketch8.addConstraint(Sketcher.Constraint("Horizontal", 1))
sketch8.addConstraint(Sketcher.Constraint("Vertical", 2))
sketch8.addConstraint(Sketcher.Constraint("Horizontal", 3))
sketch8.addConstraint(Sketcher.Constraint("DistanceX", 1, 1, 1, 2, 40.0))
sketch8.addConstraint(Sketcher.Constraint("DistanceY", 0, 2, 0, 1, 6.869501))
sketch8.addConstraint(Sketcher.Constraint("DistanceY", 0, 2, -1, 1, 127.934098))
sketch8.addConstraint(Sketcher.Constraint("DistanceX", 0, 2, -1, 1, 23.360656))
sketch8.setExpression("Constraints[8]", "Params.sketch8_width")
pad5 = doc.addObject("PartDesign::Pad", "Pad004")
body.addObject(pad5)
pad5.Profile = sketch8
pad5.setExpression("Length", "Params.pad5_length")
pad5.Reversed = True

doc.recompute()
